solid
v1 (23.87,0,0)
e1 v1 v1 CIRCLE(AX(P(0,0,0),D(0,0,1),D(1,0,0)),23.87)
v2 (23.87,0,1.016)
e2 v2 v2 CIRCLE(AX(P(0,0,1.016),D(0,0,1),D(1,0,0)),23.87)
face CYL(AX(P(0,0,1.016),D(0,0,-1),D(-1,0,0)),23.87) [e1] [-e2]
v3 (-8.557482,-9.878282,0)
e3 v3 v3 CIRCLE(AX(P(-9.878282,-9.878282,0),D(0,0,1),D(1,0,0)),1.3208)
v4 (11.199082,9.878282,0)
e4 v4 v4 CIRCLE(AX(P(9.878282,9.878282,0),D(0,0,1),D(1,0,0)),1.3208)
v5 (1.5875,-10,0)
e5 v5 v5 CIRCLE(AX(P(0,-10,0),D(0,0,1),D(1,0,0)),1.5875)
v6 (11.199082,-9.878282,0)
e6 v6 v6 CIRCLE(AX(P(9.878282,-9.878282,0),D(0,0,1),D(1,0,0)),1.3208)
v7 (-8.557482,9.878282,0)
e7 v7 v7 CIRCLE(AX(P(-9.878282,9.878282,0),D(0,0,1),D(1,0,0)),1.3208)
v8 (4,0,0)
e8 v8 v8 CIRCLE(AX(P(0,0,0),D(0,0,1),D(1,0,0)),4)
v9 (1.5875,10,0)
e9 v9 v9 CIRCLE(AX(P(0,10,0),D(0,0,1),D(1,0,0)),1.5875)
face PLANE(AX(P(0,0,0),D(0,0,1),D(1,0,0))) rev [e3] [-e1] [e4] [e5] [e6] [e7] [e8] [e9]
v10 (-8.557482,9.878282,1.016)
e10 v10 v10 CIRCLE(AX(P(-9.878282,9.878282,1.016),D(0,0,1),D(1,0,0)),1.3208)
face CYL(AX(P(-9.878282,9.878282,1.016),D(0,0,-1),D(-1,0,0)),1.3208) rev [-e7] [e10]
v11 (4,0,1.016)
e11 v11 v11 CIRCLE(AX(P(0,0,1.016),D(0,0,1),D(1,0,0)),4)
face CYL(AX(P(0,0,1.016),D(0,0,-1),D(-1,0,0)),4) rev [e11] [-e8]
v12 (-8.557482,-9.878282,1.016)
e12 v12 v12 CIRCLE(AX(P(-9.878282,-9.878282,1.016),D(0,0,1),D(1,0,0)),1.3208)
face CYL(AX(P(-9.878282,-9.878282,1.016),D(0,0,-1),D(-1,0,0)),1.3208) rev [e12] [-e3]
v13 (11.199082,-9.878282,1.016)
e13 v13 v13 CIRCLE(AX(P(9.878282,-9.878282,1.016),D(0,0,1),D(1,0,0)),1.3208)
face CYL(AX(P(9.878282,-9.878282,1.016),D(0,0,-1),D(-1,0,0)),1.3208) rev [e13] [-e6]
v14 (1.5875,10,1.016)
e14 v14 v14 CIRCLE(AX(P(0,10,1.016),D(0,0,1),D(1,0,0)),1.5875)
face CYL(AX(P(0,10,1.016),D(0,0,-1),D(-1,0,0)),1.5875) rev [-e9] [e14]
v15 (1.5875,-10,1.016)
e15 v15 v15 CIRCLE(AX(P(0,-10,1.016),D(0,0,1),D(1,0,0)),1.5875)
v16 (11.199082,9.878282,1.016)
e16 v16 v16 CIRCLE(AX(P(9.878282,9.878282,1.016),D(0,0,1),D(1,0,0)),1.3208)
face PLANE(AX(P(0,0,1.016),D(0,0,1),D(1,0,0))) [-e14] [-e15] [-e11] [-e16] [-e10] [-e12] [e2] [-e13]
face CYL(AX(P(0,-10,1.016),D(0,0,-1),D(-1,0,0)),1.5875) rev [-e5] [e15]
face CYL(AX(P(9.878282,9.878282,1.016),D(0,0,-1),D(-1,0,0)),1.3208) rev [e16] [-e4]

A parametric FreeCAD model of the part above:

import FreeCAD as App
import Part
import Sketcher

V = App.Vector
Q = App.Units.Quantity

doc = App.newDocument("Part")
body = doc.addObject("PartDesign::Body", "Body")

# Sketch on XY plane
sketch1 = body.newObject("Sketcher::SketchObject", "Sketch")
sketch1.AttachmentSupport = (doc.getObject("XY_Plane"), [""])
sketch1.MapMode = "FlatFace"
sketch1.addGeometry([
    Part.Circle(V(0, 0, 0), V(0, 0, 1), 23.9),  # 0
    Part.Circle(V(-9.9, -9.9, 0), V(0, 0, 1), 1.3),  # 1
    Part.Circle(V(0, -10, 0), V(0, 0, 1), 1.6),  # 2
    Part.Circle(V(9.9, -9.9, 0), V(0, 0, 1), 1.3),  # 3
    Part.Circle(V(0, 0, 0), V(0, 0, 1), 4),  # 4
    Part.Circle(V(-9.9, 9.9, 0), V(0, 0, 1), 1.3),  # 5
    Part.Circle(V(0, 10, 0), V(0, 0, 1), 1.6),  # 6
    Part.Circle(V(9.9, 9.9, 0), V(0, 0, 1), 1.3),  # 7
], False)
sketch1.addConstraint([
    Sketcher.Constraint("Coincident", 0, 3, -1, 1),
    Sketcher.Constraint("Coincident", 4, 3, -1, 1),
    Sketcher.Constraint("Equal", 1, 3),
    Sketcher.Constraint("Equal", 3, 5),
    Sketcher.Constraint("Equal", 2, 6),
    Sketcher.Constraint("Equal", 5, 7),
    Sketcher.Constraint("Symmetric", 3, 3, 5, 3, -1, 1),
    Sketcher.Constraint("Symmetric", 2, 3, 6, 3, -1, 1),
    Sketcher.Constraint("Symmetric", 1, 3, 7, 3, -1, 1),
    Sketcher.Constraint("Symmetric", 1, 3, 3, 3, -2),
    Sketcher.Constraint("PointOnObject", 2, 3, -2),
    Sketcher.Constraint("Diameter", 1, Q("0.104 in")),
    Sketcher.Constraint("Diameter", 2, Q("0.125 in")),
    Sketcher.Constraint("Diameter", 0, Q("47.74 mm")),
    Sketcher.Constraint("Diameter", 4, Q("8 mm")),
    Sketcher.Constraint("DistanceY", 2, 3, -1, 1, Q("10 mm")),
    Sketcher.Constraint("DistanceX", 1, 3, -1, 1, Q("9.878282 mm")),
    Sketcher.Constraint("DistanceY", 1, 3, -1, 1, Q("9.878282 mm")),
])
pad1 = body.newObject("PartDesign::Pad", "Pad")
pad1.Profile = sketch1
pad1.Length = Q("0.04 in")

doc.recompute()
